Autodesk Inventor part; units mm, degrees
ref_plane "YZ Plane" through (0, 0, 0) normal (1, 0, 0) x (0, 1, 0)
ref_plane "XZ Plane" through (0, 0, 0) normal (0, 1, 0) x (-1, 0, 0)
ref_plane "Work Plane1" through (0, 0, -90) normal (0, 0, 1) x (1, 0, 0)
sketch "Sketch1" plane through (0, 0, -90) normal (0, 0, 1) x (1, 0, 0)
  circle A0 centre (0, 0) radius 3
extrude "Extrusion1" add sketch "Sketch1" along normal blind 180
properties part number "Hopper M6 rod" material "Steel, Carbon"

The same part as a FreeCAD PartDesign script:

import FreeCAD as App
import Part
import Sketcher

V = App.Vector

doc = App.newDocument("Part")
body = doc.addObject("PartDesign::Body", "Body")

sketch1 = body.newObject("Sketcher::SketchObject", "Sketch")
sketch1.AttachmentSupport = (doc.getObject("XY_Plane"), [""])
sketch1.MapMode = "FlatFace"
sketch1.AttachmentOffset = App.Placement(V(0, 0, -90), App.Rotation())
sketch1.addGeometry(Part.Circle(V(0, 0, 0), V(0, 0, 1), 3), False)
sketch1.addConstraint([
    Sketcher.Constraint("Coincident", 0, 3, -1, 1),
    Sketcher.Constraint("Diameter", 0, 6.0),
])
pad1 = body.newObject("PartDesign::Pad", "Pad")
pad1.Profile = sketch1
pad1.Length = 180

doc.recompute()
